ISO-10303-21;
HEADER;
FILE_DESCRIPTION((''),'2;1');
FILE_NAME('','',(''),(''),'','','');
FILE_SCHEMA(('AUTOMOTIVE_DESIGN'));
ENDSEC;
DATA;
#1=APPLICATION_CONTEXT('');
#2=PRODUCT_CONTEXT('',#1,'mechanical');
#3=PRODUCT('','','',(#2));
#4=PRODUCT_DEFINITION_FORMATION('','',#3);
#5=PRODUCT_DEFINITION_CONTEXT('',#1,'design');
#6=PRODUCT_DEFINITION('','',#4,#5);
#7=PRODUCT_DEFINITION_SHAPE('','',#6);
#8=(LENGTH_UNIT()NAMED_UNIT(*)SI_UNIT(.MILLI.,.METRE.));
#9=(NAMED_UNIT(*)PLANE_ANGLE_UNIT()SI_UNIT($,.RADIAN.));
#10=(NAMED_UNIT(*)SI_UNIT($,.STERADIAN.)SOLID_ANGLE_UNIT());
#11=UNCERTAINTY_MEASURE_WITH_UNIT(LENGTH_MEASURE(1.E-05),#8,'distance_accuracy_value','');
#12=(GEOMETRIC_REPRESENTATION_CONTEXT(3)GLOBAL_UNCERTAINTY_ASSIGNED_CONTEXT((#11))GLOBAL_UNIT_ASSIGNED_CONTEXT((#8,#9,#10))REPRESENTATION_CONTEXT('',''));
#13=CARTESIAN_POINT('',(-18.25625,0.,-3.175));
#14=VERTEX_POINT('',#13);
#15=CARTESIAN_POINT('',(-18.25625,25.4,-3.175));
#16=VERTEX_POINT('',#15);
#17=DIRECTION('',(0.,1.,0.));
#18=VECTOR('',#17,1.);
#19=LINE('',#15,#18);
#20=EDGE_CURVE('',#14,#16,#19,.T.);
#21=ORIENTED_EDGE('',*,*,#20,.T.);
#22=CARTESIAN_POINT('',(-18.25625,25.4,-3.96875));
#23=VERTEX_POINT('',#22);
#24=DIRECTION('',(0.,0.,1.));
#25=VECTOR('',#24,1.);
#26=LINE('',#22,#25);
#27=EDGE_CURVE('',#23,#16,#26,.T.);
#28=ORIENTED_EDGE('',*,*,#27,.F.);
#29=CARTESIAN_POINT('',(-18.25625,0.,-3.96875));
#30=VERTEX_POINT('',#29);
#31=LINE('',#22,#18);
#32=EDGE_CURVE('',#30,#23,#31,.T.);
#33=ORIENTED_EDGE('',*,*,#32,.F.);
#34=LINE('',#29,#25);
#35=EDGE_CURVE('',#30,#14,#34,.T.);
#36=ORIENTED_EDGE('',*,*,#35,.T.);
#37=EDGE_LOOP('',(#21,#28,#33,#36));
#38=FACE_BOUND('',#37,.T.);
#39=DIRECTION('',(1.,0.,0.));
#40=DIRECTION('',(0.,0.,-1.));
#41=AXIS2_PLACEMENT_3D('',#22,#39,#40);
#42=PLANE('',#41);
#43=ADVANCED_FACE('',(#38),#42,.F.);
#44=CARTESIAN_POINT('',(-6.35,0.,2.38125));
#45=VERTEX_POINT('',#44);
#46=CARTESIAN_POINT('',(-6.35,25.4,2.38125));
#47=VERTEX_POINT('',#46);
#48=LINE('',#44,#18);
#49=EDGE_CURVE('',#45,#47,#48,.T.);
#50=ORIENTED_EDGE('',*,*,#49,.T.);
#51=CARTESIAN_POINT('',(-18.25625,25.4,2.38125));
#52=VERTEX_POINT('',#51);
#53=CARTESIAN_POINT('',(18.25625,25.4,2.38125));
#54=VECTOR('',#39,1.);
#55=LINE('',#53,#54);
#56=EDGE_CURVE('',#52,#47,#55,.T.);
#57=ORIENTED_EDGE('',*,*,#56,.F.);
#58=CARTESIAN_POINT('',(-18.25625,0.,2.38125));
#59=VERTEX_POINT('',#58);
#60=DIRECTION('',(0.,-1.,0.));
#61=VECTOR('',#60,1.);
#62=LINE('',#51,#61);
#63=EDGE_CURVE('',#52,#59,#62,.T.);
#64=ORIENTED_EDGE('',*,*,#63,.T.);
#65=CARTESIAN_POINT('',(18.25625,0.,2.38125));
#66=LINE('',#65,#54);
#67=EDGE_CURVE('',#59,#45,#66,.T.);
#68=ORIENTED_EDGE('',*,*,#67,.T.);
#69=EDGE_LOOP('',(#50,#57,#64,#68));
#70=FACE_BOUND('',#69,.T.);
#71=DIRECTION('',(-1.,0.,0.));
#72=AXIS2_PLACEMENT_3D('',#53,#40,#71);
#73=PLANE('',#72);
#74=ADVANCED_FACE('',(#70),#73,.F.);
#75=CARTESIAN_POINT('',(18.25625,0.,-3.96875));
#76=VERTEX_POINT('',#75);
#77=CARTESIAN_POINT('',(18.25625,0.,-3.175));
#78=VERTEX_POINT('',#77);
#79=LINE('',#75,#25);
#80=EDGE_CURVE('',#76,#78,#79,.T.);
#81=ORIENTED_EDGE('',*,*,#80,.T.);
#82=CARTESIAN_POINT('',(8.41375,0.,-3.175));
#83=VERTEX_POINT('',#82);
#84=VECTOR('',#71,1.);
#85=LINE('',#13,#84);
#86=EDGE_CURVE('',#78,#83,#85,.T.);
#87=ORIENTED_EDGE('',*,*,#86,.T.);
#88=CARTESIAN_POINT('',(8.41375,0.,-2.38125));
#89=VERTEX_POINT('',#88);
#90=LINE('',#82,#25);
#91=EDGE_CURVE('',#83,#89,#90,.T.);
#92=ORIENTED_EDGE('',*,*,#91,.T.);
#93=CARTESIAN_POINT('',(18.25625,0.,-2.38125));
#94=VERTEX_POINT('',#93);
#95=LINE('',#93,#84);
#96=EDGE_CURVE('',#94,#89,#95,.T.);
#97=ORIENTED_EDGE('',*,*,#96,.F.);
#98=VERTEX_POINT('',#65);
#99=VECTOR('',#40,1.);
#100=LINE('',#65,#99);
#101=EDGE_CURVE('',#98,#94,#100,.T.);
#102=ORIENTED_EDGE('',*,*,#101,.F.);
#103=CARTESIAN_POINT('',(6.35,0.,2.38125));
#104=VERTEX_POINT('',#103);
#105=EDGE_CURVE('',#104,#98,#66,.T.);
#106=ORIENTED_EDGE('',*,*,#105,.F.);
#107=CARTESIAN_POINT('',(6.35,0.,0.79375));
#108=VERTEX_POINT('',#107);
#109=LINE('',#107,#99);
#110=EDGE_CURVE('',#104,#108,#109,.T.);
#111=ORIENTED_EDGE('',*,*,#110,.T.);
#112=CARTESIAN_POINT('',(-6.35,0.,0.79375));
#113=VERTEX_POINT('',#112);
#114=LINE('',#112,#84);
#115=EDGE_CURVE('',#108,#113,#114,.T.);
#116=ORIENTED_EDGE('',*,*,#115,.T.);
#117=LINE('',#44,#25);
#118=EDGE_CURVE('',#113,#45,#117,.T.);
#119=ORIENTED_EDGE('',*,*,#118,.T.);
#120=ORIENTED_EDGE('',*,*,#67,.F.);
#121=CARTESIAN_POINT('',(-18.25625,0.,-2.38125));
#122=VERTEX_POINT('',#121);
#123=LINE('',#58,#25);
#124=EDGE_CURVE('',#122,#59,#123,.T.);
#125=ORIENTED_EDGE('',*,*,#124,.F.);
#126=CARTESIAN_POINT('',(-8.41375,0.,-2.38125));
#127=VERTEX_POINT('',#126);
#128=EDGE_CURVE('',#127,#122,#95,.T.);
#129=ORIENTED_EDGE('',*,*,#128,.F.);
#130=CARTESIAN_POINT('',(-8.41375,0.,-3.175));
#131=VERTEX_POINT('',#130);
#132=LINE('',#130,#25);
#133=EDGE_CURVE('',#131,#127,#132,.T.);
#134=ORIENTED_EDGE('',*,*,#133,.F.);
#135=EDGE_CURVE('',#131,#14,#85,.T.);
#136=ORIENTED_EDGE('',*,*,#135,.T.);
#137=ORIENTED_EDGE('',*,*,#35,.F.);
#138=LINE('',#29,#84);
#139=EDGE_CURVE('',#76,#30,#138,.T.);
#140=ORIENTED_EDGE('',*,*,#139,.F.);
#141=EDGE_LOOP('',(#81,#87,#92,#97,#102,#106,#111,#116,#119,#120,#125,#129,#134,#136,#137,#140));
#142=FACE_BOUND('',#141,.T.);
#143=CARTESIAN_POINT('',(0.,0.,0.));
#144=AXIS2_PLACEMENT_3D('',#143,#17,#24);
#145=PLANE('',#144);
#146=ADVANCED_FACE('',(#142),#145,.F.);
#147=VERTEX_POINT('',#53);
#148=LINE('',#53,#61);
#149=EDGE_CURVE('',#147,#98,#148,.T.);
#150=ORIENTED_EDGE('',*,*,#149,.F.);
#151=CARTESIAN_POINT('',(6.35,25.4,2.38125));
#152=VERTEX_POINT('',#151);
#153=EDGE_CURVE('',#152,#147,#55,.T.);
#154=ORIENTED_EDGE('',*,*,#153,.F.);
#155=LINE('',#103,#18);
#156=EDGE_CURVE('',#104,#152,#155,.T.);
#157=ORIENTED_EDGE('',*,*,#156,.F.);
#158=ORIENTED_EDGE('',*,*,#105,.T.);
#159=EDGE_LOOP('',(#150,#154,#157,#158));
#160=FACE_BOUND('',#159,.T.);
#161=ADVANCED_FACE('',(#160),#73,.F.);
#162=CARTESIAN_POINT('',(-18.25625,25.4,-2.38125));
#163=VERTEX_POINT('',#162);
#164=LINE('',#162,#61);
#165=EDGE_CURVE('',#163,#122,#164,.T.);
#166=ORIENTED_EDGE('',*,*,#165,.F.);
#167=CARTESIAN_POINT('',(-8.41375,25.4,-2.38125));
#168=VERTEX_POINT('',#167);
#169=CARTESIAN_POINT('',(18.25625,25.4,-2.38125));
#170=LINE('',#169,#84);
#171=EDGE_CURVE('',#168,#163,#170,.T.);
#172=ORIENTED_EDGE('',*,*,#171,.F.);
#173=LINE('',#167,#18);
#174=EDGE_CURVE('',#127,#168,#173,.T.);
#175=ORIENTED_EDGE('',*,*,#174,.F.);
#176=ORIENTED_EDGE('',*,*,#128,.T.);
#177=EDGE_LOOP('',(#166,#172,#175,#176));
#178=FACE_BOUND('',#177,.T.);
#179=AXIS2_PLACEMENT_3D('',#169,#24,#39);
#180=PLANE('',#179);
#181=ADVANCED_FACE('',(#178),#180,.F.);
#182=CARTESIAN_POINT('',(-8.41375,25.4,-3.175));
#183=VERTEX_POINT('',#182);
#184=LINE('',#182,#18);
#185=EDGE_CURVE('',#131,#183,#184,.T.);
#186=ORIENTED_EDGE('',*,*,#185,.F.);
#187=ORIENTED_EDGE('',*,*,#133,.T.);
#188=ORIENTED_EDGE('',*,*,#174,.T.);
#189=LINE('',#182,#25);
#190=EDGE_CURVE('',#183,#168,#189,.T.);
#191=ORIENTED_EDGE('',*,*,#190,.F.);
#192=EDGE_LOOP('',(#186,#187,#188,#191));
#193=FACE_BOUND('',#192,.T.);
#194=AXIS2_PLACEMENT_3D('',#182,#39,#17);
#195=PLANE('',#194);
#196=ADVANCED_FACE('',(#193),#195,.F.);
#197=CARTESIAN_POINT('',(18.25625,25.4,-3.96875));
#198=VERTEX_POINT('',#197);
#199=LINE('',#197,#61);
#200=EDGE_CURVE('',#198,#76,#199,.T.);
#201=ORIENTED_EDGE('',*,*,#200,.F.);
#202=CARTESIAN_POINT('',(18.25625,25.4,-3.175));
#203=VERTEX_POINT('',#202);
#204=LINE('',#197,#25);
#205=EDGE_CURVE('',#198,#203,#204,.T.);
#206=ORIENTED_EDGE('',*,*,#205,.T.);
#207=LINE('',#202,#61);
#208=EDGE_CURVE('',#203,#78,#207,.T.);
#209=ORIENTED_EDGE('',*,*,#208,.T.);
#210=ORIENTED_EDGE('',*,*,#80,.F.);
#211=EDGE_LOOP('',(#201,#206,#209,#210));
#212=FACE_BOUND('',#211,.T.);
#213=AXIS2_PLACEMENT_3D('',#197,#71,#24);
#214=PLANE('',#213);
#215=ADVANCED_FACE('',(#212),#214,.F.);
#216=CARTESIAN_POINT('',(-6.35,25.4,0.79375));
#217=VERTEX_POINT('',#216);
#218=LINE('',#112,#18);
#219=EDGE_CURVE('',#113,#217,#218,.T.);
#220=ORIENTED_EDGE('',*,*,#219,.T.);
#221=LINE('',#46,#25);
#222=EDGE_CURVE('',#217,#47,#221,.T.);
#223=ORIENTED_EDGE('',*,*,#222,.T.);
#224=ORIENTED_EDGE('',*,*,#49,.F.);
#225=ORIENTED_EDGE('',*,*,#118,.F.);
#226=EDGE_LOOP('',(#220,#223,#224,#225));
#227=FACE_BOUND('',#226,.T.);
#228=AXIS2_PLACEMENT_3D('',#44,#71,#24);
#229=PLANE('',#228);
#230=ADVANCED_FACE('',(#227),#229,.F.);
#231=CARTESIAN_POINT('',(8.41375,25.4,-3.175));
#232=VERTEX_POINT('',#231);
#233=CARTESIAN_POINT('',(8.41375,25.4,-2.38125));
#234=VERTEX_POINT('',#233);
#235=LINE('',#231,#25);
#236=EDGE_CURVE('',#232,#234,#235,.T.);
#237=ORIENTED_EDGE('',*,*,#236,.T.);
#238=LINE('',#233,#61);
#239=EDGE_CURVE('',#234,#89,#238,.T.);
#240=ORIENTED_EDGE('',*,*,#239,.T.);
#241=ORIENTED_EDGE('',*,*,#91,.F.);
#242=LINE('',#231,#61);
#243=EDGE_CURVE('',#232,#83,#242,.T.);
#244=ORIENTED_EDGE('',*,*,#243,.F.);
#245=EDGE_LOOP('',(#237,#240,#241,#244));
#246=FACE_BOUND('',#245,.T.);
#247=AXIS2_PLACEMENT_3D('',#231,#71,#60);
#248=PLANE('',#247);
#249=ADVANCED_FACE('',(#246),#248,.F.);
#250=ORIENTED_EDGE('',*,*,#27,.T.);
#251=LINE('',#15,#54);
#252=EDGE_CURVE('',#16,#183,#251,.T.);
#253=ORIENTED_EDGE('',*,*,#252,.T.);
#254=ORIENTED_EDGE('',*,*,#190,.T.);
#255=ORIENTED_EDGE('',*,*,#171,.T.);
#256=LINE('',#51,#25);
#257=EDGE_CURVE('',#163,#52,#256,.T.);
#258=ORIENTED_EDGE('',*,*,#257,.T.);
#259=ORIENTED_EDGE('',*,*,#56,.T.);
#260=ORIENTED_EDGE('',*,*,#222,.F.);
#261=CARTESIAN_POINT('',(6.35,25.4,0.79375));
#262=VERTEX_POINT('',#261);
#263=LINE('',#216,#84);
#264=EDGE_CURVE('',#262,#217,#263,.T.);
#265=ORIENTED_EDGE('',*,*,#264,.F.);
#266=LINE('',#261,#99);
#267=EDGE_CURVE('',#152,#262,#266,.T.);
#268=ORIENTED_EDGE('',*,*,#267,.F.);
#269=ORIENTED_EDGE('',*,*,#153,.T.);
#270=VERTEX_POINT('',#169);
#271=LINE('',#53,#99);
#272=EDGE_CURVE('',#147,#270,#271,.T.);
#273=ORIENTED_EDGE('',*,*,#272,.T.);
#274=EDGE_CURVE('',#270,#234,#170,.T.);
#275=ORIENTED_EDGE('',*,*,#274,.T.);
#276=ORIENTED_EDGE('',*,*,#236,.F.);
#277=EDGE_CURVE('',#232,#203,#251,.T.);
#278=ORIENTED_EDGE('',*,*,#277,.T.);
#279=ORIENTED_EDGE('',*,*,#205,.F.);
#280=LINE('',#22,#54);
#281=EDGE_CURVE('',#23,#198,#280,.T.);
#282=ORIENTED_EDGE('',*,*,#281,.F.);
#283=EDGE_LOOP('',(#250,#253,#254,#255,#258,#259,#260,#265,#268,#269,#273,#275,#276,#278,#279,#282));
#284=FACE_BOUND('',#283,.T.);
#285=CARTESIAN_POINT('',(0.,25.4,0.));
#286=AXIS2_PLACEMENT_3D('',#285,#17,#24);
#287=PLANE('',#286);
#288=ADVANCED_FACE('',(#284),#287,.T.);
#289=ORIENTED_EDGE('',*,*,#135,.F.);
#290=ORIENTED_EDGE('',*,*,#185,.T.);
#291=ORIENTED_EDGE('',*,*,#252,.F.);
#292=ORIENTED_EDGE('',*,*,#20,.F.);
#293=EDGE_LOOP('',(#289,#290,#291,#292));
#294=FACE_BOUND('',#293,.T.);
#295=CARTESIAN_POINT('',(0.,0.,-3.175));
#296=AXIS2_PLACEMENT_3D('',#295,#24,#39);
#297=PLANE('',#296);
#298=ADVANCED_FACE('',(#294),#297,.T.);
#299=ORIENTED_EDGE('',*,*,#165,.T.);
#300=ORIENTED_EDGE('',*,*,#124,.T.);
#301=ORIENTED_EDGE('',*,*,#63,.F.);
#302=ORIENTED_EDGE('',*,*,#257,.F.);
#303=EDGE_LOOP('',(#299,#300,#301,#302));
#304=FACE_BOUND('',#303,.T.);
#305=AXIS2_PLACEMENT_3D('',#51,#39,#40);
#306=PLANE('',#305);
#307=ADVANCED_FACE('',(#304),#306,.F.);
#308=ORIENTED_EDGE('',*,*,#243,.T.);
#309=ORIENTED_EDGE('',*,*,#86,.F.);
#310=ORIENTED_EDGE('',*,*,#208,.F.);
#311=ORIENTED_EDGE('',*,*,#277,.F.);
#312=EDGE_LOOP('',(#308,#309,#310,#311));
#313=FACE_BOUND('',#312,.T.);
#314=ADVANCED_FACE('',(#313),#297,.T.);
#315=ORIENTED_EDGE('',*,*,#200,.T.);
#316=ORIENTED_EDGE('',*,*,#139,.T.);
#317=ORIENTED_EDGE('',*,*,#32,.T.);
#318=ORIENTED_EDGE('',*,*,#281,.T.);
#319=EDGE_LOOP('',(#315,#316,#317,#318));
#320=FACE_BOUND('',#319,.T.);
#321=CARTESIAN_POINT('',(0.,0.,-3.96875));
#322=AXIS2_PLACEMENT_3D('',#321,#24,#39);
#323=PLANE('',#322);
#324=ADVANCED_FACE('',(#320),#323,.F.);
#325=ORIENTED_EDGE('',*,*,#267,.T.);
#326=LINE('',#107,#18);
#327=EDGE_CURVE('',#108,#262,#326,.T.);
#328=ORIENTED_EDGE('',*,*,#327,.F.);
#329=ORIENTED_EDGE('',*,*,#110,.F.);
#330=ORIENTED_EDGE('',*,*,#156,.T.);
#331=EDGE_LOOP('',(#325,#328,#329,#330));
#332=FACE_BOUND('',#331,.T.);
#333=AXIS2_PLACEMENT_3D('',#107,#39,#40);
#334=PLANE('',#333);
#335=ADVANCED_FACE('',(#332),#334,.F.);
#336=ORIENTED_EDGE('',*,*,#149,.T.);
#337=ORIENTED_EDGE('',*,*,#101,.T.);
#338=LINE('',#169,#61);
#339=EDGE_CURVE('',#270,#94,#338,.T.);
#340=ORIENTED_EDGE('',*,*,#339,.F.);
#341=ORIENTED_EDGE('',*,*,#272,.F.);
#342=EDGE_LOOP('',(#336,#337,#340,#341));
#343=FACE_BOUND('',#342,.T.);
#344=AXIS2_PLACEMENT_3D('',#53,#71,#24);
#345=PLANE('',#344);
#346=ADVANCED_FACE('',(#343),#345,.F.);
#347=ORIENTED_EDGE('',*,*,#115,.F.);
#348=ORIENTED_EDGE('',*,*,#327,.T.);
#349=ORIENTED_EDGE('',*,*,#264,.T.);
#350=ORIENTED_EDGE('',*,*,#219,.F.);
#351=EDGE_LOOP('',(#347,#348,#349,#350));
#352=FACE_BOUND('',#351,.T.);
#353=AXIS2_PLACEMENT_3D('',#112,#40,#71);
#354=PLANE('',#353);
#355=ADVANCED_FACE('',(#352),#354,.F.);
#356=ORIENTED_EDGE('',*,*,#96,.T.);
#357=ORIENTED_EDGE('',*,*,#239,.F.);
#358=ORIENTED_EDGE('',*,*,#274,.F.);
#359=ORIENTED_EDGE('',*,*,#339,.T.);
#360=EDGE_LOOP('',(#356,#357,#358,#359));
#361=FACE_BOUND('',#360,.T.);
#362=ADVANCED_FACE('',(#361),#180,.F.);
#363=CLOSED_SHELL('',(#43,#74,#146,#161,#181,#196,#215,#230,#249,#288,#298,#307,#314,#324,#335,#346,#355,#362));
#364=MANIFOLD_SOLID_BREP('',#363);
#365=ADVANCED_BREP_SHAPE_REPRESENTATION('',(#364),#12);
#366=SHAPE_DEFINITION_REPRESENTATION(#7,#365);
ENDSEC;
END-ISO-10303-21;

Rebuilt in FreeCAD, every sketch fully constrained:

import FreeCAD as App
import Part
import Sketcher
Q = App.Units.Quantity

doc = App.newDocument("Part")
body = doc.addObject("PartDesign::Body", "Body")

# Sketch on XZ plane
sketch1 = doc.addObject("Sketcher::SketchObject", "Sketch")
body.addObject(sketch1)
sketch1.AttachmentSupport = (doc.XZ_Plane, [""])
sketch1.MapMode = "FlatFace"
sketch1.addGeometry([
    Part.LineSegment(App.Vector(-18.3, -2.4, 0), App.Vector(-18.3, 2.4, 0)),
    Part.LineSegment(App.Vector(-18.3, 2.4, 0), App.Vector(18.3, 2.4, 0)),
    Part.LineSegment(App.Vector(18.3, 2.4, 0), App.Vector(18.3, -2.4, 0)),
    Part.LineSegment(App.Vector(18.3, -2.4, 0), App.Vector(-18.3, -2.4, 0)),
], False)
sketch1.addConstraint([
    Sketcher.Constraint("Coincident", 0, 2, 1, 1),
    Sketcher.Constraint("Coincident", 1, 2, 2, 1),
    Sketcher.Constraint("Coincident", 2, 2, 3, 1),
    Sketcher.Constraint("Coincident", 3, 2, 0, 1),
    Sketcher.Constraint("Vertical", 0),
    Sketcher.Constraint("Horizontal", 1),
    Sketcher.Constraint("Vertical", 2),
    Sketcher.Constraint("Horizontal", 3),
    Sketcher.Constraint("Symmetric", 0, 2, 2, 2, -1, 1),
    Sketcher.Constraint("DistanceX", 1, 1, 1, 2, Q("1.4375 in")),
    Sketcher.Constraint("DistanceY", 0, 1, 0, 2, Q("0.1875 in")),
])
pad1 = doc.addObject("PartDesign::Pad", "Pad")
body.addObject(pad1)
pad1.Profile = sketch1
pad1.Length = Q("1 in")
pad1.Reversed = True

# Sketch on XZ plane
sketch2 = doc.addObject("Sketcher::SketchObject", "Sketch001")
body.addObject(sketch2)
sketch2.AttachmentSupport = (doc.XZ_Plane, [""])
sketch2.MapMode = "FlatFace"
sketch2.AttachmentOffset = App.Placement(App.Vector(0, 0, -1 * 25.4), App.Rotation())
sketch2.addGeometry([
    Part.LineSegment(App.Vector(-6.3, 0.8, 0), App.Vector(-6.3, 2.4, 0)),
    Part.LineSegment(App.Vector(-6.3, 2.4, 0), App.Vector(6.3, 2.4, 0)),
    Part.LineSegment(App.Vector(6.3, 2.4, 0), App.Vector(6.3, 0.8, 0)),
    Part.LineSegment(App.Vector(6.3, 0.8, 0), App.Vector(-6.3, 0.8, 0)),
], False)
sketch2.addConstraint([
    Sketcher.Constraint("Coincident", 0, 2, 1, 1),
    Sketcher.Constraint("Coincident", 1, 2, 2, 1),
    Sketcher.Constraint("Coincident", 2, 2, 3, 1),
    Sketcher.Constraint("Coincident", 3, 2, 0, 1),
    Sketcher.Constraint("Vertical", 0),
    Sketcher.Constraint("Horizontal", 1),
    Sketcher.Constraint("Vertical", 2),
    Sketcher.Constraint("Horizontal", 3),
    Sketcher.Constraint("DistanceX", 1, 1, 1, 2, Q("0.5 in")),
    Sketcher.Constraint("DistanceY", 0, 1, 0, 2, Q("0.0625 in")),
    Sketcher.Constraint("DistanceX", 0, 2, -1, 1, Q("0.25 in")),
    Sketcher.Constraint("DistanceY", -1, 1, 0, 2, Q("0.09375 in")),
])
pocket1 = doc.addObject("PartDesign::Pocket", "Pocket")
body.addObject(pocket1)
pocket1.Profile = sketch2
pocket1.Length = Q("1 in")
pocket1.Reversed = True

# Sketch on XY plane
sketch3 = doc.addObject("Sketcher::SketchObject", "Sketch002")
body.addObject(sketch3)
sketch3.AttachmentSupport = (doc.XY_Plane, [""])
sketch3.MapMode = "FlatFace"
sketch3.AttachmentOffset = App.Placement(App.Vector(0, 0, -0.09375 * 25.4), App.Rotation())
sketch3.addGeometry([
    Part.LineSegment(App.Vector(8, 25, 0), App.Vector(8, 0, 0)),
    Part.LineSegment(App.Vector(8, 0, 0), App.Vector(-8, 0, 0)),
    Part.LineSegment(App.Vector(-8, 0, 0), App.Vector(-8, 25, 0)),
    Part.LineSegment(App.Vector(-8, 25, 0), App.Vector(8, 25, 0)),
], False)
sketch3.addConstraint([
    Sketcher.Constraint("Coincident", 0, 2, 1, 1),
    Sketcher.Constraint("Coincident", 1, 2, 2, 1),
    Sketcher.Constraint("Coincident", 2, 2, 3, 1),
    Sketcher.Constraint("Coincident", 3, 2, 0, 1),
    Sketcher.Constraint("Vertical", 0),
    Sketcher.Constraint("Horizontal", 1),
    Sketcher.Constraint("Vertical", 2),
    Sketcher.Constraint("Horizontal", 3),
    Sketcher.Constraint("Symmetric", 0, 2, 1, 2, -1, 1),
    Sketcher.Constraint("DistanceY", 0, 2, 0, 1, Q("1 in")),
    Sketcher.Constraint("DistanceX", 1, 2, 1, 1, Q("0.6625 in")),
])
pad2 = doc.addObject("PartDesign::Pad", "Pad001")
body.addObject(pad2)
pad2.Profile = sketch3
pad2.Length = Q("0.03125 in")
pad2.Reversed = True

# Sketch on XY plane
sketch4 = doc.addObject("Sketcher::SketchObject", "Sketch003")
body.addObject(sketch4)
sketch4.AttachmentSupport = (doc.XY_Plane, [""])
sketch4.MapMode = "FlatFace"
sketch4.AttachmentOffset = App.Placement(App.Vector(0, 0, -0.125 * 25.4), App.Rotation())
sketch4.addGeometry([
    Part.LineSegment(App.Vector(18, 25, 0), App.Vector(18, 0, 0)),
    Part.LineSegment(App.Vector(18, 0, 0), App.Vector(-18, 0, 0)),
    Part.LineSegment(App.Vector(-18, 0, 0), App.Vector(-18, 25, 0)),
    Part.LineSegment(App.Vector(-18, 25, 0), App.Vector(18, 25, 0)),
], False)
sketch4.addConstraint([
    Sketcher.Constraint("Coincident", 0, 2, 1, 1),
    Sketcher.Constraint("Coincident", 1, 2, 2, 1),
    Sketcher.Constraint("Coincident", 2, 2, 3, 1),
    Sketcher.Constraint("Coincident", 3, 2, 0, 1),
    Sketcher.Constraint("Vertical", 0),
    Sketcher.Constraint("Horizontal", 1),
    Sketcher.Constraint("Vertical", 2),
    Sketcher.Constraint("Horizontal", 3),
    Sketcher.Constraint("Symmetric", 0, 2, 1, 2, -1, 1),
    Sketcher.Constraint("DistanceY", 0, 2, 0, 1, Q("1 in")),
    Sketcher.Constraint("DistanceX", 1, 2, 1, 1, Q("1.4375 in")),
])
pad3 = doc.addObject("PartDesign::Pad", "Pad002")
body.addObject(pad3)
pad3.Profile = sketch4
pad3.Length = Q("0.03125 in")
pad3.Reversed = True

doc.recompute()
